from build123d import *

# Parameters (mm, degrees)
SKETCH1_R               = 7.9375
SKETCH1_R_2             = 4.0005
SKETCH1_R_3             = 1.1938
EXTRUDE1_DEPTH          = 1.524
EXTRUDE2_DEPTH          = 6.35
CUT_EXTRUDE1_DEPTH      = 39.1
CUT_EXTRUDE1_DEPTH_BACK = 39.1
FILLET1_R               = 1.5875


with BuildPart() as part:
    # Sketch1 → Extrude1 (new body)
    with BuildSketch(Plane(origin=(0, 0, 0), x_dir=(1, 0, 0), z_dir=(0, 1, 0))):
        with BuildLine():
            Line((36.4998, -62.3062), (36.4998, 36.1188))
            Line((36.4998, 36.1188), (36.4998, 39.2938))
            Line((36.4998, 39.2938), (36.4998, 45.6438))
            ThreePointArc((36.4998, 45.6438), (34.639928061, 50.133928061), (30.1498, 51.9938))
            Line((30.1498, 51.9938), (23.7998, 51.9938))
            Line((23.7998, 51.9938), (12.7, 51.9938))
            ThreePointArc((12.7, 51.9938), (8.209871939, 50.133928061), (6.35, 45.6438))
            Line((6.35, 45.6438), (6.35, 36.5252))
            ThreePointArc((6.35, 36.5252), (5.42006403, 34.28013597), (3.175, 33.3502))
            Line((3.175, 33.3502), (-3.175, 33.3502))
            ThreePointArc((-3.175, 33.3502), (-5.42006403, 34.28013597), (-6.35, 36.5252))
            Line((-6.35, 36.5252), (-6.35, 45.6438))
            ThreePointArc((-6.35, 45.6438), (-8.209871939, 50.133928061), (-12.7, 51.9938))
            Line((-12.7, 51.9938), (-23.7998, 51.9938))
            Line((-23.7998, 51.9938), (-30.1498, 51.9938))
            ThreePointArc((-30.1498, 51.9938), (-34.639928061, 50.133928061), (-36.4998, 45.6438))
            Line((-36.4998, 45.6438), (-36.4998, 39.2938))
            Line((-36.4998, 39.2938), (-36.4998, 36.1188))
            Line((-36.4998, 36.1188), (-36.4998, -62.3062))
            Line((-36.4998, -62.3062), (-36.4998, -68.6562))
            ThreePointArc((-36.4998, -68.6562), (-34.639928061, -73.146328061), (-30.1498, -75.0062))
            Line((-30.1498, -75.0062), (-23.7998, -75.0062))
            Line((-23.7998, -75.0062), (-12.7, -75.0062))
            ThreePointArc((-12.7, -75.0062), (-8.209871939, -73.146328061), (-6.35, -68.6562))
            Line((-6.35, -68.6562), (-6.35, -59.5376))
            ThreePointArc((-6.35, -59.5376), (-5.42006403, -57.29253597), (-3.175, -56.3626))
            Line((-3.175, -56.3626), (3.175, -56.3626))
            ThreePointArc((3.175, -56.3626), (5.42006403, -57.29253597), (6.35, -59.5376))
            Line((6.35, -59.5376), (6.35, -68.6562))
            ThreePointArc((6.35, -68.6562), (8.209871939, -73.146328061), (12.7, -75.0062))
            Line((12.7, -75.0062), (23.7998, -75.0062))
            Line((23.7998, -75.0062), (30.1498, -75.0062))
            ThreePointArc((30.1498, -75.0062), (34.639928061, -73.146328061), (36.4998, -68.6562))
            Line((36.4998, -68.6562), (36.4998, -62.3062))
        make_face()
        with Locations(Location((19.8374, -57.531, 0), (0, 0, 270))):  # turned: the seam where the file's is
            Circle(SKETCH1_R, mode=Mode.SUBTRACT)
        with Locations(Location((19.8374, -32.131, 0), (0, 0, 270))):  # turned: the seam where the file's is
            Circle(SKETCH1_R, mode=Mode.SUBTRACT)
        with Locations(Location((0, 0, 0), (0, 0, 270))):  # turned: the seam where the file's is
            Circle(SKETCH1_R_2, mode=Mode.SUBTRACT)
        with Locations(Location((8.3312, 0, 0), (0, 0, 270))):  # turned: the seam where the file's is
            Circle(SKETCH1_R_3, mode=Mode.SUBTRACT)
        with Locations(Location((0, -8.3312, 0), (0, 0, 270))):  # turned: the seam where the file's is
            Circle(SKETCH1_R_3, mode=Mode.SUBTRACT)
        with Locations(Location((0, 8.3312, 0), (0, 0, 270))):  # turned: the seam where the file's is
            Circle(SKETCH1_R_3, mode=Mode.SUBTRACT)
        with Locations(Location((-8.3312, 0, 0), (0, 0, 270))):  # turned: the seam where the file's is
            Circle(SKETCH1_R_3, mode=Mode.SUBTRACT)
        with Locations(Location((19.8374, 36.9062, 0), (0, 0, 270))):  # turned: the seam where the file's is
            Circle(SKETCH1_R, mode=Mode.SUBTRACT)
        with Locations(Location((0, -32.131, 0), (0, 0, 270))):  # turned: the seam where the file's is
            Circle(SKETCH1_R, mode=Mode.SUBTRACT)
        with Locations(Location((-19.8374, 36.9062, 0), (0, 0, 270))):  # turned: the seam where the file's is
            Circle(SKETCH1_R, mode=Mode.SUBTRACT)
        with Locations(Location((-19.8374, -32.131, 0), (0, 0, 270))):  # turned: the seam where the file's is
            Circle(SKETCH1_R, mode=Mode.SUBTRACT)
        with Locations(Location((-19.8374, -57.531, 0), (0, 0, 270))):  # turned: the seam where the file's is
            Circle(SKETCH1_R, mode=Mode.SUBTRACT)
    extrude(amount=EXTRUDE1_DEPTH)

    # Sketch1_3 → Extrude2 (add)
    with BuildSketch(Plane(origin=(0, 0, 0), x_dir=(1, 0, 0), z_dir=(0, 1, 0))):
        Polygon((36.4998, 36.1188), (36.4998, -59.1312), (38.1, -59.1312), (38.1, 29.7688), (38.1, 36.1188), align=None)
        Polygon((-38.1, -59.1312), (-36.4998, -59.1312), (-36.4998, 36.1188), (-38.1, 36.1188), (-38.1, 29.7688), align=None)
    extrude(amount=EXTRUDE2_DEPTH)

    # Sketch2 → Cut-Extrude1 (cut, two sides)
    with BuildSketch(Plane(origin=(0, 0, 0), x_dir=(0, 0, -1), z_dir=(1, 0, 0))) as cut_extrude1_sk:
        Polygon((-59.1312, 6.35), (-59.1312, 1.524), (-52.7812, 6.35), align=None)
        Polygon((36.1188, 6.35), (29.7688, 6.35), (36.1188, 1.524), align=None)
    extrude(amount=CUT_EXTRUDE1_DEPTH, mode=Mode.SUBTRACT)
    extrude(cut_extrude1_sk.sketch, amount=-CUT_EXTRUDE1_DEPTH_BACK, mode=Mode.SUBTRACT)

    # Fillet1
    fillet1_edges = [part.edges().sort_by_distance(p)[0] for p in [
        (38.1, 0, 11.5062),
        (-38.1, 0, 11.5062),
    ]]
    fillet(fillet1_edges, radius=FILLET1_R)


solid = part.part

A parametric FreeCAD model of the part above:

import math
import FreeCAD as App
import Part
import Sketcher

V = App.Vector
Q = App.Units.Quantity


def edges_at(feature, points):
    """Names of the edges that pass closest to the given points."""
    edges = feature.Shape.Edges
    near = lambda p: min(range(len(edges)), key=lambda i: edges[i].distToShape(Part.Vertex(*p))[0])
    return sorted({f"Edge{near(p) + 1}" for p in points})

doc = App.newDocument("Part")
body = doc.addObject("PartDesign::Body", "Body")

# Sketch on XZ plane
sketch1 = body.newObject("Sketcher::SketchObject", "Sketch")
sketch1.AttachmentSupport = (doc.getObject("XZ_Plane"), [""])
sketch1.MapMode = "FlatFace"
sketch1.addGeometry([
    Part.ArcOfCircle(Part.Circle(V(30.1, -45.6, 0), V(0, 0, 1), 6.3), math.radians(-90), math.radians(0)),  # 0
    Part.LineSegment(V(30.1, -52, 0), V(12.7, -52, 0)),  # 1
    Part.ArcOfCircle(Part.Circle(V(12.7, -45.6, 0), V(0, 0, 1), 6.3), math.radians(180), math.radians(270)),  # 2
    Part.LineSegment(V(6.3, -45.6, 0), V(6.3, -36.5, 0)),  # 3
    Part.ArcOfCircle(Part.Circle(V(3.2, -36.5, 0), V(0, 0, 1), 3.2), math.radians(0), math.radians(90)),  # 4
    Part.LineSegment(V(3.2, -33.4, 0), V(-3.2, -33.4, 0)),  # 5
    Part.ArcOfCircle(Part.Circle(V(-3.2, -36.5, 0), V(0, 0, 1), 3.2), math.radians(90), math.radians(180)),  # 6
    Part.LineSegment(V(-6.3, -36.5, 0), V(-6.3, -45.6, 0)),  # 7
    Part.ArcOfCircle(Part.Circle(V(-12.7, -45.6, 0), V(0, 0, 1), 6.3), math.radians(-90), math.radians(0)),  # 8
    Part.LineSegment(V(-12.7, -52, 0), V(-30.1, -52, 0)),  # 9
    Part.ArcOfCircle(Part.Circle(V(-30.1, -45.6, 0), V(0, 0, 1), 6.3), math.radians(180), math.radians(270)),  # 10
    Part.LineSegment(V(-36.5, -45.6, 0), V(-36.5, 68.7, 0)),  # 11
    Part.ArcOfCircle(Part.Circle(V(-30.1, 68.7, 0), V(0, 0, 1), 6.3), math.radians(90), math.radians(180)),  # 12
    Part.LineSegment(V(-30.1, 75, 0), V(-12.7, 75, 0)),  # 13
    Part.ArcOfCircle(Part.Circle(V(-12.7, 68.7, 0), V(0, 0, 1), 6.3), math.radians(0), math.radians(90)),  # 14
    Part.LineSegment(V(-6.3, 68.7, 0), V(-6.3, 59.5, 0)),  # 15
    Part.ArcOfCircle(Part.Circle(V(-3.2, 59.5, 0), V(0, 0, 1), 3.2), math.radians(-180), math.radians(-90)),  # 16
    Part.LineSegment(V(-3.2, 56.4, 0), V(3.2, 56.4, 0)),  # 17
    Part.ArcOfCircle(Part.Circle(V(3.2, 59.5, 0), V(0, 0, 1), 3.2), math.radians(-90), math.radians(0)),  # 18
    Part.LineSegment(V(6.3, 59.5, 0), V(6.3, 68.7, 0)),  # 19
    Part.ArcOfCircle(Part.Circle(V(12.7, 68.7, 0), V(0, 0, 1), 6.3), math.radians(90), math.radians(180)),  # 20
    Part.LineSegment(V(12.7, 75, 0), V(30.1, 75, 0)),  # 21
    Part.ArcOfCircle(Part.Circle(V(30.1, 68.7, 0), V(0, 0, 1), 6.3), math.radians(0), math.radians(90)),  # 22
    Part.LineSegment(V(36.5, 68.7, 0), V(36.5, -45.6, 0)),  # 23
    Part.Circle(V(-19.8, 57.5, 0), V(0, 0, 1), 7.9),  # 24
    Part.Circle(V(-19.8, 32.1, 0), V(0, 0, 1), 7.9),  # 25
    Part.Circle(V(19.8, 57.5, 0), V(0, 0, 1), 7.9),  # 26
    Part.Circle(V(0, 32.1, 0), V(0, 0, 1), 7.9),  # 27
    Part.Circle(V(19.8, 32.1, 0), V(0, 0, 1), 7.9),  # 28
    Part.Circle(V(-8.3, 0, 0), V(0, 0, 1), 1.2),  # 29
    Part.Circle(V(-19.8, -36.9, 0), V(0, 0, 1), 7.9),  # 30
    Part.Circle(V(0, 8.3, 0), V(0, 0, 1), 1.2),  # 31
    Part.Circle(V(0, 0, 0), V(0, 0, 1), 4),  # 32
    Part.Circle(V(8.3, 0, 0), V(0, 0, 1), 1.2),  # 33
    Part.Circle(V(0, -8.3, 0), V(0, 0, 1), 1.2),  # 34
    Part.Circle(V(19.8, -36.9, 0), V(0, 0, 1), 7.9),  # 35
], False)
sketch1.addConstraint([
    Sketcher.Constraint("Tangent", 0, 1, 1, 1),
    Sketcher.Constraint("Tangent", 1, 2, 2, 2),
    Sketcher.Constraint("Tangent", 2, 1, 3, 1),
    Sketcher.Constraint("Tangent", 3, 2, 4, 1),
    Sketcher.Constraint("Tangent", 4, 2, 5, 1),
    Sketcher.Constraint("Tangent", 5, 2, 6, 1),
    Sketcher.Constraint("Tangent", 6, 2, 7, 1),
    Sketcher.Constraint("Tangent", 7, 2, 8, 2),
    Sketcher.Constraint("Tangent", 8, 1, 9, 1),
    Sketcher.Constraint("Tangent", 9, 2, 10, 2),
    Sketcher.Constraint("Tangent", 10, 1, 11, 1),
    Sketcher.Constraint("Tangent", 11, 2, 12, 2),
    Sketcher.Constraint("Tangent", 12, 1, 13, 1),
    Sketcher.Constraint("Tangent", 13, 2, 14, 2),
    Sketcher.Constraint("Tangent", 14, 1, 15, 1),
    Sketcher.Constraint("Tangent", 15, 2, 16, 1),
    Sketcher.Constraint("Tangent", 16, 2, 17, 1),
    Sketcher.Constraint("Tangent", 17, 2, 18, 1),
    Sketcher.Constraint("Tangent", 18, 2, 19, 1),
    Sketcher.Constraint("Tangent", 19, 2, 20, 2),
    Sketcher.Constraint("Tangent", 20, 1, 21, 1),
    Sketcher.Constraint("Tangent", 21, 2, 22, 2),
    Sketcher.Constraint("Tangent", 22, 1, 23, 1),
    Sketcher.Constraint("Tangent", 23, 2, 0, 2),
    Sketcher.Constraint("Horizontal", 1),
    Sketcher.Constraint("Vertical", 3),
    Sketcher.Constraint("Horizontal", 5),
    Sketcher.Constraint("Vertical", 7),
    Sketcher.Constraint("Horizontal", 9),
    Sketcher.Constraint("Vertical", 11),
    Sketcher.Constraint("Horizontal", 13),
    Sketcher.Constraint("Vertical", 15),
    Sketcher.Constraint("Horizontal", 17),
    Sketcher.Constraint("Vertical", 19),
    Sketcher.Constraint("Horizontal", 21),
    Sketcher.Constraint("Vertical", 23),
    Sketcher.Constraint("Coincident", 32, 3, -1, 1),
    Sketcher.Constraint("Equal", 0, 2),
    Sketcher.Constraint("Equal", 4, 6),
    Sketcher.Constraint("Equal", 2, 8),
    Sketcher.Constraint("Equal", 8, 10),
    Sketcher.Constraint("Equal", 10, 12),
    Sketcher.Constraint("Equal", 12, 14),
    Sketcher.Constraint("Equal", 6, 16),
    Sketcher.Constraint("Equal", 16, 18),
    Sketcher.Constraint("Equal", 14, 20),
    Sketcher.Constraint("Equal", 20, 22),
    Sketcher.Constraint("Equal", 24, 25),
    Sketcher.Constraint("Equal", 25, 26),
    Sketcher.Constraint("Equal", 26, 27),
    Sketcher.Constraint("Equal", 27, 28),
    Sketcher.Constraint("Equal", 28, 30),
    Sketcher.Constraint("Equal", 29, 31),
    Sketcher.Constraint("Equal", 31, 33),
    Sketcher.Constraint("Equal", 33, 34),
    Sketcher.Constraint("Equal", 30, 35),
    Sketcher.Constraint("Symmetric", 29, 3, 33, 3, -1, 1),
    Sketcher.Constraint("Symmetric", 31, 3, 34, 3, -1, 1),
    Sketcher.Constraint("Symmetric", 2, 3, 8, 3, -2),
    Sketcher.Constraint("Symmetric", 14, 3, 20, 3, -2),
    Sketcher.Constraint("Symmetric", 24, 3, 26, 3, -2),
    Sketcher.Constraint("Symmetric", 25, 3, 28, 3, -2),
    Sketcher.Constraint("Symmetric", 30, 3, 35, 3, -2),
    Sketcher.Constraint("PointOnObject", 27, 3, -2),
    Sketcher.Constraint("PointOnObject", 29, 3, -1),
    Sketcher.Constraint("PointOnObject", 31, 3, -2),
    Sketcher.Constraint("Horizontal", 25, 3, 27, 3),
    Sketcher.Constraint("Vertical", 8, 3, 14, 3),
    Sketcher.Constraint("Vertical", 24, 3, 25, 3),
    Sketcher.Constraint("Vertical", 25, 3, 30, 3),
    Sketcher.Constraint("Equal", 1, 9),
    Sketcher.Constraint("Equal", 7, 15),
    Sketcher.Constraint("Radius", 0, Q("0.25 in")),
    Sketcher.Constraint("Diameter", 24, Q("0.625 in")),
    Sketcher.Constraint("Diameter", 29, Q("0.094 in")),
    Sketcher.Constraint("Diameter", 32, Q("0.315 in")),
    Sketcher.Constraint("DistanceY", 11, 1, 11, 2, Q("4.5 in")),
    Sketcher.Constraint("Radius", 4, Q("0.125 in")),
    Sketcher.Constraint("DistanceX", 8, 3, 2, 3, Q("1 in")),
    Sketcher.Constraint("DistanceY", 25, 3, 24, 3, Q("1 in")),
    Sketcher.Constraint("DistanceX", 1, 2, 1, 1, Q("0.687 in")),
    Sketcher.Constraint("DistanceY", 3, 1, 3, 2, Q("0.359 in")),
    Sketcher.Constraint("DistanceY", 4, 3, 34, 3, Q("1.11 in")),
    Sketcher.Constraint("DistanceY", 0, 3, -1, 1, Q("1.797 in")),
    Sketcher.Constraint("DistanceX", 24, 3, -1, 1, Q("0.781 in")),
    Sketcher.Constraint("DistanceY", -1, 1, 24, 3, Q("2.265 in")),
    Sketcher.Constraint("DistanceX", 29, 3, -1, 1, Q("0.328 in")),
    Sketcher.Constraint("DistanceY", 30, 3, -1, 1, Q("1.453 in")),
])
pad1 = body.newObject("PartDesign::Pad", "Pad")
pad1.Profile = sketch1
pad1.Length = Q("0.06 in")
pad1.Reversed = True

# Sketch on XZ plane
sketch2 = body.newObject("Sketcher::SketchObject", "Sketch001")
sketch2.AttachmentSupport = (doc.getObject("XZ_Plane"), [""])
sketch2.MapMode = "FlatFace"
sketch2.addGeometry([
    Part.LineSegment(V(36.5, -36.1, 0), V(36.5, 59.1, 0)),  # 0
    Part.LineSegment(V(36.5, 59.1, 0), V(38.1, 59.1, 0)),  # 1
    Part.LineSegment(V(38.1, 59.1, 0), V(38.1, -36.1, 0)),  # 2
    Part.LineSegment(V(38.1, -36.1, 0), V(36.5, -36.1, 0)),  # 3
    Part.LineSegment(V(-38.1, 59.1, 0), V(-36.5, 59.1, 0)),  # 4
    Part.LineSegment(V(-36.5, 59.1, 0), V(-36.5, -36.1, 0)),  # 5
    Part.LineSegment(V(-36.5, -36.1, 0), V(-38.1, -36.1, 0)),  # 6
    Part.LineSegment(V(-38.1, -36.1, 0), V(-38.1, 59.1, 0)),  # 7
], False)
sketch2.addConstraint([
    Sketcher.Constraint("Coincident", 0, 2, 1, 1),
    Sketcher.Constraint("Coincident", 1, 2, 2, 1),
    Sketcher.Constraint("Coincident", 2, 2, 3, 1),
    Sketcher.Constraint("Coincident", 3, 2, 0, 1),
    Sketcher.Constraint("Coincident", 4, 2, 5, 1),
    Sketcher.Constraint("Coincident", 5, 2, 6, 1),
    Sketcher.Constraint("Coincident", 6, 2, 7, 1),
    Sketcher.Constraint("Coincident", 7, 2, 4, 1),
    Sketcher.Constraint("Vertical", 0),
    Sketcher.Constraint("Horizontal", 1),
    Sketcher.Constraint("Vertical", 2),
    Sketcher.Constraint("Horizontal", 3),
    Sketcher.Constraint("Horizontal", 4),
    Sketcher.Constraint("Vertical", 5),
    Sketcher.Constraint("Horizontal", 6),
    Sketcher.Constraint("Vertical", 7),
    Sketcher.Constraint("Symmetric", 0, 2, 4, 2, -2),
    Sketcher.Constraint("Symmetric", 2, 2, 6, 2, -2),
    Sketcher.Constraint("DistanceX", 6, 2, 2, 2, Q("3 in")),
    Sketcher.Constraint("DistanceY", 0, 1, 0, 2, Q("3.75 in")),
    Sketcher.Constraint("DistanceX", 1, 1, 1, 2, Q("0.063 in")),
    Sketcher.Constraint("DistanceY", -1, 1, 0, 2, Q("2.328 in")),
])
pad2 = body.newObject("PartDesign::Pad", "Pad001")
pad2.Profile = sketch2
pad2.Length = Q("0.25 in")
pad2.Reversed = True

# Sketch on YZ plane
sketch3 = body.newObject("Sketcher::SketchObject", "Sketch002")
sketch3.AttachmentSupport = (doc.getObject("YZ_Plane"), [""])
sketch3.MapMode = "FlatFace"
sketch3.addGeometry([
    Part.LineSegment(V(6.3, 59.1, 0), V(1.5, 59.1, 0)),  # 0
    Part.LineSegment(V(1.5, 59.1, 0), V(6.3, 52.8, 0)),  # 1
    Part.LineSegment(V(6.3, 52.8, 0), V(6.3, 59.1, 0)),  # 2
    Part.LineSegment(V(6.3, -36.1, 0), V(6.3, -29.8, 0)),  # 3
    Part.LineSegment(V(6.3, -29.8, 0), V(1.5, -36.1, 0)),  # 4
    Part.LineSegment(V(1.5, -36.1, 0), V(6.3, -36.1, 0)),  # 5
], False)
sketch3.addConstraint([
    Sketcher.Constraint("Coincident", 0, 2, 1, 1),
    Sketcher.Constraint("Coincident", 1, 2, 2, 1),
    Sketcher.Constraint("Coincident", 2, 2, 0, 1),
    Sketcher.Constraint("Coincident", 3, 2, 4, 1),
    Sketcher.Constraint("Coincident", 4, 2, 5, 1),
    Sketcher.Constraint("Coincident", 5, 2, 3, 1),
    Sketcher.Constraint("Horizontal", 0),
    Sketcher.Constraint("Vertical", 2),
    Sketcher.Constraint("Vertical", 3),
    Sketcher.Constraint("Horizontal", 5),
    Sketcher.Constraint("Vertical", 2, 2, 3, 2),
    Sketcher.Constraint("Vertical", 0, 2, 4, 2),
    Sketcher.Constraint("Equal", 2, 3),
    Sketcher.Constraint("DistanceX", 0, 2, 0, 1, Q("0.19 in")),
    Sketcher.Constraint("DistanceY", 2, 1, 2, 2, Q("0.25 in")),
    Sketcher.Constraint("DistanceY", 3, 2, 2, 2, Q("3.5 in")),
    Sketcher.Constraint("DistanceX", -1, 1, 0, 2, Q("0.06 in")),
    Sketcher.Constraint("DistanceY", -1, 1, 0, 2, Q("2.328 in")),
])
pocket1 = body.newObject("PartDesign::Pocket", "Pocket")
pocket1.Profile = sketch3
pocket1.Type = "ThroughAll"
pocket1.Midplane = True
doc.recompute()

fillet = body.newObject("PartDesign::Fillet", "Fillet")
fillet.Base = (pocket1, edges_at(pocket1, [(38.1, 0, 11.506), (-38.1, 0, 11.506)]))
fillet.Radius = Q("0.0625 in")

doc.recompute()
